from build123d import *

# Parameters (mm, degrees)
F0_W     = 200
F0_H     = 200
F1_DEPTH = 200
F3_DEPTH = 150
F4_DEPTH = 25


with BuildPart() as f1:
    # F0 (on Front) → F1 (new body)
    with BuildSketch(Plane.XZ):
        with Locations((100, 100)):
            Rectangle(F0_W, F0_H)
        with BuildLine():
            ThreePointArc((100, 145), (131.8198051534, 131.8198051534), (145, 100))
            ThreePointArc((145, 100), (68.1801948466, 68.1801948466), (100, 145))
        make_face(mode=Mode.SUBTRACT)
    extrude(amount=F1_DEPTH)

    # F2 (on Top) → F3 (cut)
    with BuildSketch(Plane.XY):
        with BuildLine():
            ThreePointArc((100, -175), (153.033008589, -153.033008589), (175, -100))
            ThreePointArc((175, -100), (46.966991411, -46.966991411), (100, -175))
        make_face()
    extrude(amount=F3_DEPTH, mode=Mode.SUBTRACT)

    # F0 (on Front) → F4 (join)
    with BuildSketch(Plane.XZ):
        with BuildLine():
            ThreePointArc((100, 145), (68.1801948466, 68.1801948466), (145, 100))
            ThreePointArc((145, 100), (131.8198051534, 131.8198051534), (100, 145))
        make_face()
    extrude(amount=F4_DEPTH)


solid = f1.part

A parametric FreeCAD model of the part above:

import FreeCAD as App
import Part
import Sketcher
from FreeCAD import Vector
Q = App.Units.Quantity

doc = App.newDocument("Part")
body = doc.addObject("PartDesign::Body", "Body")

sketch1 = body.newObject("Sketcher::SketchObject", "Sketch")
sketch1.AttachmentSupport = (doc.getObject("XZ_Plane"), [""])
sketch1.MapMode = "FlatFace"
sketch1.addGeometry(Part.LineSegment(Vector(0, 200, 0), Vector(0, 0, 0)), False)
sketch1.addGeometry(Part.LineSegment(Vector(0, 0, 0), Vector(200, 0, 0)), False)
sketch1.addGeometry(Part.LineSegment(Vector(200, 0, 0), Vector(200, 200, 0)), False)
sketch1.addGeometry(Part.LineSegment(Vector(200, 200, 0), Vector(0, 200, 0)), False)
sketch1.addGeometry(Part.Circle(Vector(100, 100, 0), Vector(0, 0, 1), 45), False)
sketch1.addConstraint(Sketcher.Constraint("Coincident", 0, 2, 1, 1))
sketch1.addConstraint(Sketcher.Constraint("Coincident", 1, 2, 2, 1))
sketch1.addConstraint(Sketcher.Constraint("Coincident", 2, 2, 3, 1))
sketch1.addConstraint(Sketcher.Constraint("Coincident", 3, 2, 0, 1))
sketch1.addConstraint(Sketcher.Constraint("Vertical", 0))
sketch1.addConstraint(Sketcher.Constraint("Horizontal", 1))
sketch1.addConstraint(Sketcher.Constraint("Vertical", 2))
sketch1.addConstraint(Sketcher.Constraint("Horizontal", 3))
sketch1.addConstraint(Sketcher.Constraint("Coincident", 0, 2, -1, 1))
sketch1.addConstraint(Sketcher.Constraint("Equal", 3, 0))
sketch1.addConstraint(Sketcher.Constraint("Diameter", 4, Q("90 mm")))
sketch1.addConstraint(Sketcher.Constraint("DistanceX", 1, 1, 1, 2, Q("200 mm")))
sketch1.addConstraint(Sketcher.Constraint("DistanceX", -1, 1, 4, 3, Q("100 mm")))
sketch1.addConstraint(Sketcher.Constraint("DistanceY", -1, 1, 4, 3, Q("100 mm")))
pad1 = body.newObject("PartDesign::Pad", "Pad")
pad1.Profile = sketch1
pad1.Length = 200

sketch2 = body.newObject("Sketcher::SketchObject", "Sketch001")
sketch2.AttachmentSupport = (doc.getObject("XY_Plane"), [""])
sketch2.MapMode = "FlatFace"
sketch2.addGeometry(Part.Circle(Vector(100, -100, 0), Vector(0, 0, 1), 75), False)
sketch2.addConstraint(Sketcher.Constraint("Diameter", 0, Q("150 mm")))
sketch2.addConstraint(Sketcher.Constraint("DistanceX", -1, 1, 0, 3, Q("100 mm")))
sketch2.addConstraint(Sketcher.Constraint("DistanceY", 0, 3, -1, 1, Q("100 mm")))
pocket1 = body.newObject("PartDesign::Pocket", "Pocket")
pocket1.Profile = sketch2
pocket1.Length = 150
pocket1.Reversed = True

sketch3 = body.newObject("Sketcher::SketchObject", "Sketch002")
sketch3.AttachmentSupport = (doc.getObject("XZ_Plane"), [""])
sketch3.MapMode = "FlatFace"
sketch3.addGeometry(Part.Circle(Vector(100, 100, 0), Vector(0, 0, 1), 45), False)
sketch3.addConstraint(Sketcher.Constraint("Diameter", 0, Q("90 mm")))
sketch3.addConstraint(Sketcher.Constraint("DistanceX", -1, 1, 0, 3, Q("100 mm")))
sketch3.addConstraint(Sketcher.Constraint("DistanceY", -1, 1, 0, 3, Q("100 mm")))
pad2 = body.newObject("PartDesign::Pad", "Pad001")
pad2.Profile = sketch3
pad2.Length = 25

doc.recompute()
